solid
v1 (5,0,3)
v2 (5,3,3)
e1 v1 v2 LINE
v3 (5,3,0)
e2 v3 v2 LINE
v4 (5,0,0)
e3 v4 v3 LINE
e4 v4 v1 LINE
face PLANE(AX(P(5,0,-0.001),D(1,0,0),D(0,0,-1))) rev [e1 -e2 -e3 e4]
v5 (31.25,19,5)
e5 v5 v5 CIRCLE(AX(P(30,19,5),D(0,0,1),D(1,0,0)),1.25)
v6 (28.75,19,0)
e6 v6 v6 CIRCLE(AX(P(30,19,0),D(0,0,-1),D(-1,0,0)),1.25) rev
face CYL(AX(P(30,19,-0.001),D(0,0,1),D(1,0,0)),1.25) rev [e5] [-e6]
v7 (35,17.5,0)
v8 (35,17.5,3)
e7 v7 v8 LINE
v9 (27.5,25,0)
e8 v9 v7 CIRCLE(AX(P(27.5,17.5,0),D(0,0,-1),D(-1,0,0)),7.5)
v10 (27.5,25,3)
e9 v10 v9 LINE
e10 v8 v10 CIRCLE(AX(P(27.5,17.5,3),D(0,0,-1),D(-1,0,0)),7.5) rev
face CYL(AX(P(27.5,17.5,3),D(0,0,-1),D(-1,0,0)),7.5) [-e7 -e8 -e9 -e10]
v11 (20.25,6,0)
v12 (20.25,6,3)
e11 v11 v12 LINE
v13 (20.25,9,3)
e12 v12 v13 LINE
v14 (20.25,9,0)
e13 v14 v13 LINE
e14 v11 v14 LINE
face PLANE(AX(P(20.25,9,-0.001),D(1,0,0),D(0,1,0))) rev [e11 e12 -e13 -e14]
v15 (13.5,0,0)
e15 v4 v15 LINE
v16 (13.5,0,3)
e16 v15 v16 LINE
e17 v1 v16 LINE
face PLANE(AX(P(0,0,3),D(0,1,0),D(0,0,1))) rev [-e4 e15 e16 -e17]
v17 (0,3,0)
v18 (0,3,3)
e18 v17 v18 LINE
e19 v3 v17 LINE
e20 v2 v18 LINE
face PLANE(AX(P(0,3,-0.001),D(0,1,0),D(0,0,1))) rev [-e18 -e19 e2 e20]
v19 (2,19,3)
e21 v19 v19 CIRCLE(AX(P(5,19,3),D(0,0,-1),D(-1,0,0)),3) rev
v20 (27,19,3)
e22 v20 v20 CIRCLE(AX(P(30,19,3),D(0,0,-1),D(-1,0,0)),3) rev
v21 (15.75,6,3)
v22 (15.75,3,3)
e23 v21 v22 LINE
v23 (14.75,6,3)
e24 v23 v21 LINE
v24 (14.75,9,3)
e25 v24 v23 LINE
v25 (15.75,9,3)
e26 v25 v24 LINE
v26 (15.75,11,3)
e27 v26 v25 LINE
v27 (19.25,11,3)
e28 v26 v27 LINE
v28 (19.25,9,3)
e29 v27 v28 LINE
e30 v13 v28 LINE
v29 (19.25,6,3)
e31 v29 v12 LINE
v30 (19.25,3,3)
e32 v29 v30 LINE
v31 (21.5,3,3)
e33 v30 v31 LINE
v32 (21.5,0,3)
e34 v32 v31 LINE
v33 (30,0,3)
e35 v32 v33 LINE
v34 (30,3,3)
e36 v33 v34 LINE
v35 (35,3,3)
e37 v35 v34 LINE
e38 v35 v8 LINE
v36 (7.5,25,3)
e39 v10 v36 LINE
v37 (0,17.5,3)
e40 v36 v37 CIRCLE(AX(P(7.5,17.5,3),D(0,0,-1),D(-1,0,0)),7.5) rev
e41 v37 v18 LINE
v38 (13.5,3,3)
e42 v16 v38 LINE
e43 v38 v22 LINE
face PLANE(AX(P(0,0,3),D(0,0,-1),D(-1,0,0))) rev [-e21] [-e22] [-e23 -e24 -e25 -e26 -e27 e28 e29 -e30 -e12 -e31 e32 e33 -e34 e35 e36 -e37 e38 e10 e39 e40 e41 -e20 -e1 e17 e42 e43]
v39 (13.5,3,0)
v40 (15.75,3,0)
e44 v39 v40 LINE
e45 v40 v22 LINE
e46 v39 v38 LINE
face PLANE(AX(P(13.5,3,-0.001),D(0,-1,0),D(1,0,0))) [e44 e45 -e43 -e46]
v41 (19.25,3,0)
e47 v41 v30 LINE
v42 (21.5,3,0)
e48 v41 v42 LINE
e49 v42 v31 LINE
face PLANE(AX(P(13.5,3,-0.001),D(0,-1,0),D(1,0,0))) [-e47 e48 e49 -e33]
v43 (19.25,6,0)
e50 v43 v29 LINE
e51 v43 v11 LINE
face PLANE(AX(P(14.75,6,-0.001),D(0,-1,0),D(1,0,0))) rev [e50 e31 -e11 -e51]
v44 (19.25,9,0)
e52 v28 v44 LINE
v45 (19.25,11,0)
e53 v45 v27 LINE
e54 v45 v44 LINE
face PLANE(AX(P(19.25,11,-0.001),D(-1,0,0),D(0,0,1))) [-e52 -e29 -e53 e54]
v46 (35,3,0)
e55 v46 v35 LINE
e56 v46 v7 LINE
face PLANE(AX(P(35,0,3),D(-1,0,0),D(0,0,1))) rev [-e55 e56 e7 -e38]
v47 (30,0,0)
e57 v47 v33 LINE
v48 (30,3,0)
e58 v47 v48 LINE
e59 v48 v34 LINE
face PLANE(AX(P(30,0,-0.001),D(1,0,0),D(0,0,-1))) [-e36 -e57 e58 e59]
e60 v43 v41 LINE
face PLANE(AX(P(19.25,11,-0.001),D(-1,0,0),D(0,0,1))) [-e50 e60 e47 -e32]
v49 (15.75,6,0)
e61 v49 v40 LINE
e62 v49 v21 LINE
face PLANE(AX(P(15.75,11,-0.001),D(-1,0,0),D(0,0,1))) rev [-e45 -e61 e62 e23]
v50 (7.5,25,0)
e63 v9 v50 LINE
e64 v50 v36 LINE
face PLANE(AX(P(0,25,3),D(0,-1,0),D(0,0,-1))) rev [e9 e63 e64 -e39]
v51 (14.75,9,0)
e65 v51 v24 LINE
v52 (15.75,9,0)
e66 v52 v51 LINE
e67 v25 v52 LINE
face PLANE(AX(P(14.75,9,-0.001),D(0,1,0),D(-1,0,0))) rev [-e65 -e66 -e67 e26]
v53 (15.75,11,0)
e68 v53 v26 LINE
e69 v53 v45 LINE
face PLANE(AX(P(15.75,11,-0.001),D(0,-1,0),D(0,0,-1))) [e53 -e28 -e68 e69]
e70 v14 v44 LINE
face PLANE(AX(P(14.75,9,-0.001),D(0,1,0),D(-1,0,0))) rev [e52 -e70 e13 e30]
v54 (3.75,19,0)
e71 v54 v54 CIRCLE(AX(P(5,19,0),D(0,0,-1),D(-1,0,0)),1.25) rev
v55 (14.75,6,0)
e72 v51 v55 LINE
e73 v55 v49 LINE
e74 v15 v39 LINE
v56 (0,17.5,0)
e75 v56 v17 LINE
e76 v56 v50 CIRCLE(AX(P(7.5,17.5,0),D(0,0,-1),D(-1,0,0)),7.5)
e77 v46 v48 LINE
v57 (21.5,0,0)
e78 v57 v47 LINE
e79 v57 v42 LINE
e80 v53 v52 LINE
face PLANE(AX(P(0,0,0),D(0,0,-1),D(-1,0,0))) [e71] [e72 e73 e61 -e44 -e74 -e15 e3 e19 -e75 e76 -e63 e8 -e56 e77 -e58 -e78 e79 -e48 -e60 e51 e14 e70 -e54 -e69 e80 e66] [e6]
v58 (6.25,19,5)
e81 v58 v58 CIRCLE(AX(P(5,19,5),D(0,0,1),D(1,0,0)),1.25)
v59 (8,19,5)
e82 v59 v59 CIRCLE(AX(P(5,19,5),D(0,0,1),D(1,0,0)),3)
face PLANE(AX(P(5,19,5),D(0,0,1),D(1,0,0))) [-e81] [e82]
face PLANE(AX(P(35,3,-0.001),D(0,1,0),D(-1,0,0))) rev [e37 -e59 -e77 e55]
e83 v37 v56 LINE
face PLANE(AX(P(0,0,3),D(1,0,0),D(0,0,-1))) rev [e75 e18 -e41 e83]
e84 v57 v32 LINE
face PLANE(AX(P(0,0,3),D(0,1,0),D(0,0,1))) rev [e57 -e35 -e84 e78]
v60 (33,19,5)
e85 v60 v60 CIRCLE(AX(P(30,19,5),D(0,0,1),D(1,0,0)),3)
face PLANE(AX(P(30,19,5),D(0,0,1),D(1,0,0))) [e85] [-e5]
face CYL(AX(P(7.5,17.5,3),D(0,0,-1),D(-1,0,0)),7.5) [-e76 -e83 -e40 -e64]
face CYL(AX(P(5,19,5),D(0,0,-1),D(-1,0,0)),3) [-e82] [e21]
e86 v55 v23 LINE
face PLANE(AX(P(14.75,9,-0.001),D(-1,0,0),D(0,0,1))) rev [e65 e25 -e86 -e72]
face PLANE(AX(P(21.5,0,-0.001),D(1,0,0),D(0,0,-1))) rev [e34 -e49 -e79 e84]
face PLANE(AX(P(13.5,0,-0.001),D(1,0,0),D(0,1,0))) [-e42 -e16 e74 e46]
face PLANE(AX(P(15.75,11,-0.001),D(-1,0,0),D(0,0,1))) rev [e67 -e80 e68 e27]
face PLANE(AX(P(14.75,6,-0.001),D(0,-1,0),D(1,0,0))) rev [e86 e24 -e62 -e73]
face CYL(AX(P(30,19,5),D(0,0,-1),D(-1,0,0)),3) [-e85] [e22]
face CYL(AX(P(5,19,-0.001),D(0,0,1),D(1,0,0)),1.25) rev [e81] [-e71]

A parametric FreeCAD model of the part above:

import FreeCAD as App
import Part
import Sketcher

V = App.Vector
Q = App.Units.Quantity


def edges_at(feature, points):
    """Names of the edges that pass closest to the given points."""
    edges = feature.Shape.Edges
    near = lambda p: min(range(len(edges)), key=lambda i: edges[i].distToShape(Part.Vertex(*p))[0])
    return sorted({f"Edge{near(p) + 1}" for p in points})

doc = App.newDocument("Part")
body = doc.addObject("PartDesign::Body", "Body")

sketch1 = body.newObject("Sketcher::SketchObject", "Sketch")
sketch1.AttachmentSupport = (doc.getObject("XY_Plane"), [""])
sketch1.MapMode = "FlatFace"
sketch1.addGeometry(Part.LineSegment(V(0, 25, 0), V(0, 0, 0)), False)
sketch1.addGeometry(Part.LineSegment(V(0, 0, 0), V(35, 0, 0)), False)
sketch1.addGeometry(Part.LineSegment(V(35, 0, 0), V(35, 25, 0)), False)
sketch1.addGeometry(Part.LineSegment(V(35, 25, 0), V(0, 25, 0)), False)
sketch1.addConstraint(Sketcher.Constraint("Coincident", 0, 2, 1, 1))
sketch1.addConstraint(Sketcher.Constraint("Coincident", 1, 2, 2, 1))
sketch1.addConstraint(Sketcher.Constraint("Coincident", 2, 2, 3, 1))
sketch1.addConstraint(Sketcher.Constraint("Coincident", 3, 2, 0, 1))
sketch1.addConstraint(Sketcher.Constraint("Vertical", 0))
sketch1.addConstraint(Sketcher.Constraint("Horizontal", 1))
sketch1.addConstraint(Sketcher.Constraint("Vertical", 2))
sketch1.addConstraint(Sketcher.Constraint("Horizontal", 3))
sketch1.addConstraint(Sketcher.Constraint("Coincident", 0, 2, -1, 1))
sketch1.addConstraint(Sketcher.Constraint("DistanceX", 1, 1, 1, 2, Q("35 mm")))
sketch1.addConstraint(Sketcher.Constraint("DistanceY", 0, 2, 0, 1, Q("25 mm")))
pad1 = body.newObject("PartDesign::Pad", "Pad")
pad1.Profile = sketch1
pad1.Length = 3
doc.recompute()

fillet = body.newObject("PartDesign::Fillet", "Fillet")
fillet.Base = (pad1, edges_at(pad1, [(0, 25, 1.5), (35, 25, 1.5)]))
fillet.Radius = 7.5

sketch2 = body.newObject("Sketcher::SketchObject", "Sketch001")
sketch2.AttachmentSupport = (doc.getObject("XY_Plane"), [""])
sketch2.MapMode = "FlatFace"
sketch2.AttachmentOffset = App.Placement(V(0, 0, 3), App.Rotation())
sketch2.addGeometry(Part.LineSegment(V(13.5, 3, 0), V(13.5, 0, 0)), False)
sketch2.addGeometry(Part.LineSegment(V(13.5, 0, 0), V(21.5, 0, 0)), False)
sketch2.addGeometry(Part.LineSegment(V(21.5, 0, 0), V(21.5, 3, 0)), False)
sketch2.addGeometry(Part.LineSegment(V(21.5, 3, 0), V(13.5, 3, 0)), False)
sketch2.addConstraint(Sketcher.Constraint("Coincident", 0, 2, 1, 1))
sketch2.addConstraint(Sketcher.Constraint("Coincident", 1, 2, 2, 1))
sketch2.addConstraint(Sketcher.Constraint("Coincident", 2, 2, 3, 1))
sketch2.addConstraint(Sketcher.Constraint("Coincident", 3, 2, 0, 1))
sketch2.addConstraint(Sketcher.Constraint("Vertical", 0))
sketch2.addConstraint(Sketcher.Constraint("Horizontal", 1))
sketch2.addConstraint(Sketcher.Constraint("Vertical", 2))
sketch2.addConstraint(Sketcher.Constraint("Horizontal", 3))
sketch2.addConstraint(Sketcher.Constraint("PointOnObject", 0, 2, -1))
sketch2.addConstraint(Sketcher.Constraint("DistanceX", 1, 1, 1, 2, Q("8 mm")))
sketch2.addConstraint(Sketcher.Constraint("DistanceY", 0, 2, 0, 1, Q("3 mm")))
sketch2.addConstraint(Sketcher.Constraint("DistanceX", -1, 1, 0, 2, Q("13.5 mm")))
pocket1 = body.newObject("PartDesign::Pocket", "Pocket")
pocket1.Profile = sketch2
pocket1.Type = "UpToFirst"

sketch3 = body.newObject("Sketcher::SketchObject", "Sketch002")
sketch3.AttachmentSupport = (doc.getObject("XY_Plane"), [""])
sketch3.MapMode = "FlatFace"
sketch3.AttachmentOffset = App.Placement(V(0, 0, 3), App.Rotation())
sketch3.addGeometry(Part.LineSegment(V(14.8, 9, 0), V(14.8, 6, 0)), False)
sketch3.addGeometry(Part.LineSegment(V(14.8, 6, 0), V(20.2, 6, 0)), False)
sketch3.addGeometry(Part.LineSegment(V(20.2, 6, 0), V(20.2, 9, 0)), False)
sketch3.addGeometry(Part.LineSegment(V(20.2, 9, 0), V(14.8, 9, 0)), False)
sketch3.addConstraint(Sketcher.Constraint("Coincident", 0, 2, 1, 1))
sketch3.addConstraint(Sketcher.Constraint("Coincident", 1, 2, 2, 1))
sketch3.addConstraint(Sketcher.Constraint("Coincident", 2, 2, 3, 1))
sketch3.addConstraint(Sketcher.Constraint("Coincident", 3, 2, 0, 1))
sketch3.addConstraint(Sketcher.Constraint("Vertical", 0))
sketch3.addConstraint(Sketcher.Constraint("Horizontal", 1))
sketch3.addConstraint(Sketcher.Constraint("Vertical", 2))
sketch3.addConstraint(Sketcher.Constraint("Horizontal", 3))
sketch3.addConstraint(Sketcher.Constraint("DistanceY", 0, 2, 0, 1, Q("3 mm")))
sketch3.addConstraint(Sketcher.Constraint("DistanceX", 1, 1, 1, 2, Q("5.5 mm")))
sketch3.addConstraint(Sketcher.Constraint("DistanceY", -1, 1, 0, 2, Q("6 mm")))
sketch3.addConstraint(Sketcher.Constraint("DistanceX", -1, 1, 0, 2, Q("14.75 mm")))
pocket2 = body.newObject("PartDesign::Pocket", "Pocket001")
pocket2.Profile = sketch3
pocket2.Type = "UpToFirst"

sketch4 = body.newObject("Sketcher::SketchObject", "Sketch003")
sketch4.AttachmentSupport = (doc.getObject("XY_Plane"), [""])
sketch4.MapMode = "FlatFace"
sketch4.addGeometry(Part.LineSegment(V(15.8, 11, 0), V(15.8, 0, 0)), False)
sketch4.addGeometry(Part.LineSegment(V(15.8, 0, 0), V(19.2, 0, 0)), False)
sketch4.addGeometry(Part.LineSegment(V(19.2, 0, 0), V(19.2, 11, 0)), False)
sketch4.addGeometry(Part.LineSegment(V(19.2, 11, 0), V(15.8, 11, 0)), False)
sketch4.addConstraint(Sketcher.Constraint("Coincident", 0, 2, 1, 1))
sketch4.addConstraint(Sketcher.Constraint("Coincident", 1, 2, 2, 1))
sketch4.addConstraint(Sketcher.Constraint("Coincident", 2, 2, 3, 1))
sketch4.addConstraint(Sketcher.Constraint("Coincident", 3, 2, 0, 1))
sketch4.addConstraint(Sketcher.Constraint("Vertical", 0))
sketch4.addConstraint(Sketcher.Constraint("Horizontal", 1))
sketch4.addConstraint(Sketcher.Constraint("Vertical", 2))
sketch4.addConstraint(Sketcher.Constraint("Horizontal", 3))
sketch4.addConstraint(Sketcher.Constraint("PointOnObject", 0, 2, -1))
sketch4.addConstraint(Sketcher.Constraint("DistanceY", 0, 2, 0, 1, Q("11 mm")))
sketch4.addConstraint(Sketcher.Constraint("DistanceX", 1, 1, 1, 2, Q("3.5 mm")))
sketch4.addConstraint(Sketcher.Constraint("DistanceX", -1, 1, 0, 2, Q("15.75 mm")))
pocket3 = body.newObject("PartDesign::Pocket", "Pocket002")
pocket3.Profile = sketch4
pocket3.Length = 3
pocket3.Reversed = True

sketch5 = body.newObject("Sketcher::SketchObject", "Sketch004")
sketch5.AttachmentSupport = (doc.getObject("XY_Plane"), [""])
sketch5.MapMode = "FlatFace"
sketch5.AttachmentOffset = App.Placement(V(0, 0, 3), App.Rotation())
sketch5.addGeometry(Part.LineSegment(V(0, 3, 0), V(0, 0, 0)), False)
sketch5.addGeometry(Part.LineSegment(V(0, 0, 0), V(5, 0, 0)), False)
sketch5.addGeometry(Part.LineSegment(V(5, 0, 0), V(5, 3, 0)), False)
sketch5.addGeometry(Part.LineSegment(V(5, 3, 0), V(0, 3, 0)), False)
sketch5.addConstraint(Sketcher.Constraint("Coincident", 0, 2, 1, 1))
sketch5.addConstraint(Sketcher.Constraint("Coincident", 1, 2, 2, 1))
sketch5.addConstraint(Sketcher.Constraint("Coincident", 2, 2, 3, 1))
sketch5.addConstraint(Sketcher.Constraint("Coincident", 3, 2, 0, 1))
sketch5.addConstraint(Sketcher.Constraint("Vertical", 0))
sketch5.addConstraint(Sketcher.Constraint("Horizontal", 1))
sketch5.addConstraint(Sketcher.Constraint("Vertical", 2))
sketch5.addConstraint(Sketcher.Constraint("Horizontal", 3))
sketch5.addConstraint(Sketcher.Constraint("Coincident", 0, 2, -1, 1))
sketch5.addConstraint(Sketcher.Constraint("DistanceX", 1, 1, 1, 2, Q("5 mm")))
sketch5.addConstraint(Sketcher.Constraint("DistanceY", 0, 2, 0, 1, Q("3 mm")))
pocket4 = body.newObject("PartDesign::Pocket", "Pocket003")
pocket4.Profile = sketch5
pocket4.Type = "UpToFirst"

sketch6 = body.newObject("Sketcher::SketchObject", "Sketch005")
sketch6.AttachmentSupport = (doc.getObject("XY_Plane"), [""])
sketch6.MapMode = "FlatFace"
sketch6.AttachmentOffset = App.Placement(V(0, 0, 3), App.Rotation())
sketch6.addGeometry(Part.LineSegment(V(30, 3, 0), V(30, 0, 0)), False)
sketch6.addGeometry(Part.LineSegment(V(30, 0, 0), V(35, 0, 0)), False)
sketch6.addGeometry(Part.LineSegment(V(35, 0, 0), V(35, 3, 0)), False)
sketch6.addGeometry(Part.LineSegment(V(35, 3, 0), V(30, 3, 0)), False)
sketch6.addConstraint(Sketcher.Constraint("Coincident", 0, 2, 1, 1))
sketch6.addConstraint(Sketcher.Constraint("Coincident", 1, 2, 2, 1))
sketch6.addConstraint(Sketcher.Constraint("Coincident", 2, 2, 3, 1))
sketch6.addConstraint(Sketcher.Constraint("Coincident", 3, 2, 0, 1))
sketch6.addConstraint(Sketcher.Constraint("Vertical", 0))
sketch6.addConstraint(Sketcher.Constraint("Horizontal", 1))
sketch6.addConstraint(Sketcher.Constraint("Vertical", 2))
sketch6.addConstraint(Sketcher.Constraint("Horizontal", 3))
sketch6.addConstraint(Sketcher.Constraint("PointOnObject", 0, 2, -1))
sketch6.addConstraint(Sketcher.Constraint("DistanceX", 1, 1, 1, 2, Q("5 mm")))
sketch6.addConstraint(Sketcher.Constraint("DistanceY", 0, 2, 0, 1, Q("3 mm")))
sketch6.addConstraint(Sketcher.Constraint("DistanceX", -1, 1, 0, 2, Q("30 mm")))
pocket5 = body.newObject("PartDesign::Pocket", "Pocket004")
pocket5.Profile = sketch6
pocket5.Type = "UpToFirst"

sketch7 = body.newObject("Sketcher::SketchObject", "Sketch006")
sketch7.AttachmentSupport = (doc.getObject("XY_Plane"), [""])
sketch7.MapMode = "FlatFace"
sketch7.AttachmentOffset = App.Placement(V(0, 0, 3), App.Rotation())
sketch7.addGeometry(Part.Circle(V(30, 19, 0), V(0, 0, 1), 3), False)
sketch7.addConstraint(Sketcher.Constraint("Diameter", 0, Q("6 mm")))
sketch7.addConstraint(Sketcher.Constraint("DistanceX", -1, 1, 0, 3, Q("30 mm")))
sketch7.addConstraint(Sketcher.Constraint("DistanceY", -1, 1, 0, 3, Q("19 mm")))
pad2 = body.newObject("PartDesign::Pad", "Pad001")
pad2.Profile = sketch7
pad2.Length = 2

sketch8 = body.newObject("Sketcher::SketchObject", "Sketch007")
sketch8.AttachmentSupport = (doc.getObject("XY_Plane"), [""])
sketch8.MapMode = "FlatFace"
sketch8.AttachmentOffset = App.Placement(V(0, 0, 3), App.Rotation())
sketch8.addGeometry(Part.Circle(V(5, 19, 0), V(0, 0, 1), 3), False)
sketch8.addConstraint(Sketcher.Constraint("Diameter", 0, Q("6 mm")))
sketch8.addConstraint(Sketcher.Constraint("DistanceX", -1, 1, 0, 3, Q("5 mm")))
sketch8.addConstraint(Sketcher.Constraint("DistanceY", -1, 1, 0, 3, Q("19 mm")))
pad3 = body.newObject("PartDesign::Pad", "Pad002")
pad3.Profile = sketch8
pad3.Length = 2

sketch9 = body.newObject("Sketcher::SketchObject", "Sketch008")
sketch9.AttachmentSupport = (doc.getObject("XY_Plane"), [""])
sketch9.MapMode = "FlatFace"
sketch9.AttachmentOffset = App.Placement(V(0, 0, 5), App.Rotation())
sketch9.addGeometry(Part.Circle(V(5, 19, 0), V(0, 0, 1), 1.2), False)
sketch9.addConstraint(Sketcher.Constraint("Diameter", 0, Q("2.5 mm")))
sketch9.addConstraint(Sketcher.Constraint("DistanceX", -1, 1, 0, 3, Q("5 mm")))
sketch9.addConstraint(Sketcher.Constraint("DistanceY", -1, 1, 0, 3, Q("19 mm")))
pocket6 = body.newObject("PartDesign::Pocket", "Pocket005")
pocket6.Profile = sketch9
pocket6.Type = "UpToFirst"

sketch10 = body.newObject("Sketcher::SketchObject", "Sketch009")
sketch10.AttachmentSupport = (doc.getObject("XY_Plane"), [""])
sketch10.MapMode = "FlatFace"
sketch10.AttachmentOffset = App.Placement(V(0, 0, 5), App.Rotation())
sketch10.addGeometry(Part.Circle(V(30, 19, 0), V(0, 0, 1), 1.2), False)
sketch10.addConstraint(Sketcher.Constraint("Diameter", 0, Q("2.5 mm")))
sketch10.addConstraint(Sketcher.Constraint("DistanceX", -1, 1, 0, 3, Q("30 mm")))
sketch10.addConstraint(Sketcher.Constraint("DistanceY", -1, 1, 0, 3, Q("19 mm")))
pocket7 = body.newObject("PartDesign::Pocket", "Pocket006")
pocket7.Profile = sketch10
pocket7.Type = "UpToFirst"

doc.recompute()
